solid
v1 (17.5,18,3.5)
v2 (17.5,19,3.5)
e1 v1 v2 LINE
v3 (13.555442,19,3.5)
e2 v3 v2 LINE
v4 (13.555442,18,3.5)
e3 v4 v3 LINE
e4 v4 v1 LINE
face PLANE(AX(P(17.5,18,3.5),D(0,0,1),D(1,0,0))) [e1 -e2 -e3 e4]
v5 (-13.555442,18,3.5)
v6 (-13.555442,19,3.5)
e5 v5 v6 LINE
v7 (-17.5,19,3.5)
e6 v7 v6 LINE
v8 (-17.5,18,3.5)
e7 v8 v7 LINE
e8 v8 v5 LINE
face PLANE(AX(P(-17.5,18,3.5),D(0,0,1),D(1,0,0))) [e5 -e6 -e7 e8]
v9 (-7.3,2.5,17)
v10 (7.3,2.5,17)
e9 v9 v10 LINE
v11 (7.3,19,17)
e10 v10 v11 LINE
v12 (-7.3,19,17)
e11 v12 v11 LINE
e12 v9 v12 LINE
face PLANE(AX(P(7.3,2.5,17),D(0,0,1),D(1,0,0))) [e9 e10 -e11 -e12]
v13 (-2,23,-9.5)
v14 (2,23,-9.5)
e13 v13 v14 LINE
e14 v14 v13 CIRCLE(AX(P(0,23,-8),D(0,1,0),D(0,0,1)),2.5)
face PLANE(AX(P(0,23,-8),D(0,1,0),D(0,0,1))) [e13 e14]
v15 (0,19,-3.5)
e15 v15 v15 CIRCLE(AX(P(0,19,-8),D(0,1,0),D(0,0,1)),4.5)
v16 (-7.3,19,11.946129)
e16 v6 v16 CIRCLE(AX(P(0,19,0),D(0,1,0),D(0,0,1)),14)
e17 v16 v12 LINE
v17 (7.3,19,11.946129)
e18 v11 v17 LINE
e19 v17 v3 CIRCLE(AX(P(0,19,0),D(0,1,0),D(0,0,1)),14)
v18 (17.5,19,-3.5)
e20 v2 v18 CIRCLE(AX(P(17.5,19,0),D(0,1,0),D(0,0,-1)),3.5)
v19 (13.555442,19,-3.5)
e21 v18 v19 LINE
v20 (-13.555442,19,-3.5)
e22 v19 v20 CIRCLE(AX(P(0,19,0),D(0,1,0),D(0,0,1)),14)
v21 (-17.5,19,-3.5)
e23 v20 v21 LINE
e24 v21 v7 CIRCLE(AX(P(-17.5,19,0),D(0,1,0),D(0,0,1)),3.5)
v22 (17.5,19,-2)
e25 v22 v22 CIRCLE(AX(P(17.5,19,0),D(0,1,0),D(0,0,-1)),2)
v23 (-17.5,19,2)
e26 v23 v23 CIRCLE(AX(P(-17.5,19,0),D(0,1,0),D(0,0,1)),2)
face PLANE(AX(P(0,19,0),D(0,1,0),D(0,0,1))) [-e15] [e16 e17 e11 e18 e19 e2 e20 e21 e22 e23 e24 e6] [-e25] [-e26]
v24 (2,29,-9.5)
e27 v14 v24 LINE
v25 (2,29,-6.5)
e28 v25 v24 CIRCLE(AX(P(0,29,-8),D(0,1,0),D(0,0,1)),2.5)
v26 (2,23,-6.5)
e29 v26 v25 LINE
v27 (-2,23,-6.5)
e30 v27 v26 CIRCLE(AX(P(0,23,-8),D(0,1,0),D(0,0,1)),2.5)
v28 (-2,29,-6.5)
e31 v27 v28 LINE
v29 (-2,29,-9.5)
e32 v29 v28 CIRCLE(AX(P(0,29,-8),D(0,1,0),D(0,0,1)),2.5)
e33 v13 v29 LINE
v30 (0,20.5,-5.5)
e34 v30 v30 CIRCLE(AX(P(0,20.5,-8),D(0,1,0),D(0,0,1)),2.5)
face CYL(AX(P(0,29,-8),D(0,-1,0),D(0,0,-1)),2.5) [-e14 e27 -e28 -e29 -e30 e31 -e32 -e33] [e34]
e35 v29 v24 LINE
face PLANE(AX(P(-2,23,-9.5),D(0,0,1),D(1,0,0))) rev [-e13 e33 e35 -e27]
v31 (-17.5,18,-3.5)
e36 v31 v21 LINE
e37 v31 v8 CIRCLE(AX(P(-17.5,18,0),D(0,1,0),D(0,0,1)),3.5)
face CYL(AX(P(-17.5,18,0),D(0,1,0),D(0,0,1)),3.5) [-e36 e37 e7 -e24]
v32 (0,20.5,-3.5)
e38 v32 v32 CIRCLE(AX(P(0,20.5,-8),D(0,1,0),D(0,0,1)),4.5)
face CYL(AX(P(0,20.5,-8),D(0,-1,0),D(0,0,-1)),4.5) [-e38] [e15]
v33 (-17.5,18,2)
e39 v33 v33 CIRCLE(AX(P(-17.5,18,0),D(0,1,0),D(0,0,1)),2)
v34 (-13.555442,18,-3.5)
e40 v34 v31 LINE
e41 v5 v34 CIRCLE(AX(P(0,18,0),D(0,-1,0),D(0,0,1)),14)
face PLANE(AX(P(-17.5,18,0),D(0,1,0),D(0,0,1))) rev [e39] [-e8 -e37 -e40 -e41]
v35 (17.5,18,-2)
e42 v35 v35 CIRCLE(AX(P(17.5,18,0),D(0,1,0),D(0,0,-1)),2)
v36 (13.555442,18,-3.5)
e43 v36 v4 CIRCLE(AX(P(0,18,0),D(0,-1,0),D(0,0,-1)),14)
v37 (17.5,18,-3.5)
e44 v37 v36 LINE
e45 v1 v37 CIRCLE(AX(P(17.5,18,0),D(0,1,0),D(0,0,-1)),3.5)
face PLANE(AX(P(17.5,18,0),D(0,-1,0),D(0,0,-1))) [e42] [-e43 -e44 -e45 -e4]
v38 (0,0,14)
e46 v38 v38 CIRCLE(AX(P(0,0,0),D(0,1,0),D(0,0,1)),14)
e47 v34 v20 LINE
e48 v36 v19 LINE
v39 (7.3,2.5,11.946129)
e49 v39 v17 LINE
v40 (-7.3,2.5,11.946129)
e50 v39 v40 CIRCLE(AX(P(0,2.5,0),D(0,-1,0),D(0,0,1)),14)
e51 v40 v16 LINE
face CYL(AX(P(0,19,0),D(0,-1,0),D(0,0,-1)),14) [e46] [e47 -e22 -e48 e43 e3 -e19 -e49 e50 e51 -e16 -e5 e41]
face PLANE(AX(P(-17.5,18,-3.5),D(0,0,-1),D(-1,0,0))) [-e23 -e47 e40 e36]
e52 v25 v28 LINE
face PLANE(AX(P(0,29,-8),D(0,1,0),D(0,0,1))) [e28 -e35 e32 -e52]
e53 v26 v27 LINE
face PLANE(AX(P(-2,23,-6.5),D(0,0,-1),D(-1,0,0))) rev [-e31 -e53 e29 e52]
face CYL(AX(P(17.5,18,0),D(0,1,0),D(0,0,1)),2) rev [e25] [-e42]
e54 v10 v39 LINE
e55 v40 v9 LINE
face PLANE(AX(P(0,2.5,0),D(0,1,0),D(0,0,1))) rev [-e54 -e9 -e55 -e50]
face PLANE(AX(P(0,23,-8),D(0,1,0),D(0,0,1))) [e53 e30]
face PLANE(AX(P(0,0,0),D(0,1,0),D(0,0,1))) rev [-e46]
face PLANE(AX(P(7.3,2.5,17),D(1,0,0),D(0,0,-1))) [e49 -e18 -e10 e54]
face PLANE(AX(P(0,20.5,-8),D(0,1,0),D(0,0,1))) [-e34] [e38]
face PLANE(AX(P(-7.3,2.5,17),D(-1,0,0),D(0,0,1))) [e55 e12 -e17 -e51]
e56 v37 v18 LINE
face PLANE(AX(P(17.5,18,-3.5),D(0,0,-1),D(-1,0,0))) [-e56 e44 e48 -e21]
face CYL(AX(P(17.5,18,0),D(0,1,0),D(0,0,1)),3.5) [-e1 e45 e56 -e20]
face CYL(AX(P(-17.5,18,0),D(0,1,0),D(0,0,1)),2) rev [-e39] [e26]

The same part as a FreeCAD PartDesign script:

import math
import FreeCAD as App
import Part
import Sketcher
Q = App.Units.Quantity

doc = App.newDocument("Part")
body = doc.addObject("PartDesign::Body", "Body")

# Sketch on XZ plane
sketch1 = body.newObject("Sketcher::SketchObject", "Sketch")
sketch1.AttachmentSupport = (doc.getObject("XZ_Plane"), [""])
sketch1.MapMode = "FlatFace"
sketch1.addGeometry(Part.Circle(App.Vector(0, 0, 0), App.Vector(0, 0, 1), 14), False)
sketch1.addConstraint([
    Sketcher.Constraint("Coincident", 0, 3, -1, 1),
    Sketcher.Constraint("Diameter", 0, Q("28 mm")),
])
pad1 = body.newObject("PartDesign::Pad", "Pad")
pad1.Profile = sketch1
pad1.Length = 19
pad1.Reversed = True

# Sketch on XZ plane
sketch2 = body.newObject("Sketcher::SketchObject", "Sketch001")
sketch2.AttachmentSupport = (doc.getObject("XZ_Plane"), [""])
sketch2.MapMode = "FlatFace"
sketch2.AttachmentOffset = App.Placement(App.Vector(0, 0, -19), App.Rotation())
sketch2.addGeometry(Part.Circle(App.Vector(0, -8, 0), App.Vector(0, 0, 1), 4.5), False)
sketch2.addConstraint([
    Sketcher.Constraint("PointOnObject", 0, 3, -2),
    Sketcher.Constraint("Diameter", 0, Q("9 mm")),
    Sketcher.Constraint("DistanceY", 0, 3, -1, 1, Q("8 mm")),
])
pad2 = body.newObject("PartDesign::Pad", "Pad001")
pad2.Profile = sketch2
pad2.Length = 1.5
pad2.Reversed = True

# Sketch on XZ plane
sketch3 = body.newObject("Sketcher::SketchObject", "Sketch002")
sketch3.AttachmentSupport = (doc.getObject("XZ_Plane"), [""])
sketch3.MapMode = "FlatFace"
sketch3.AttachmentOffset = App.Placement(App.Vector(0, 0, -20.5), App.Rotation())
sketch3.addGeometry(Part.Circle(App.Vector(0, -8, 0), App.Vector(0, 0, 1), 2.5), False)
sketch3.addConstraint([
    Sketcher.Constraint("PointOnObject", 0, 3, -2),
    Sketcher.Constraint("Diameter", 0, Q("5 mm")),
    Sketcher.Constraint("DistanceY", 0, 3, -1, 1, Q("8 mm")),
])
pad3 = body.newObject("PartDesign::Pad", "Pad002")
pad3.Profile = sketch3
pad3.Length = 8.5
pad3.Reversed = True

# Sketch on XZ plane
sketch4 = body.newObject("Sketcher::SketchObject", "Sketch003")
sketch4.AttachmentSupport = (doc.getObject("XZ_Plane"), [""])
sketch4.MapMode = "FlatFace"
sketch4.AttachmentOffset = App.Placement(App.Vector(0, 0, -23), App.Rotation())
sketch4.addGeometry([
    Part.LineSegment(App.Vector(-2, -9.5, 0), App.Vector(2, -9.5, 0)),
    Part.ArcOfCircle(Part.Circle(App.Vector(0, -8, 0), App.Vector(0, 0, 1), 2.5), math.radians(-143), math.radians(-37)),
    Part.LineSegment(App.Vector(2, -6.5, 0), App.Vector(-2, -6.5, 0)),
    Part.ArcOfCircle(Part.Circle(App.Vector(0, -8, 0), App.Vector(0, 0, 1), 2.5), math.radians(37), math.radians(143)),
], False)
sketch4.addConstraint([
    Sketcher.Constraint("Coincident", 0, 1, 1, 1),
    Sketcher.Constraint("Coincident", 1, 2, 0, 2),
    Sketcher.Constraint("Coincident", 2, 1, 3, 1),
    Sketcher.Constraint("Coincident", 3, 2, 2, 2),
    Sketcher.Constraint("Horizontal", 0),
    Sketcher.Constraint("Horizontal", 2),
    Sketcher.Constraint("Coincident", 3, 3, 1, 3),
    Sketcher.Constraint("Equal", 1, 3),
    Sketcher.Constraint("PointOnObject", 1, 3, -2),
    Sketcher.Constraint("Vertical", 1, 2, 2, 1),
    Sketcher.Constraint("Radius", 1, Q("2.5 mm")),
    Sketcher.Constraint("DistanceX", 0, 1, 0, 2, Q("4 mm")),
    Sketcher.Constraint("DistanceY", 1, 3, -1, 1, Q("8 mm")),
])
pocket1 = body.newObject("PartDesign::Pocket", "Pocket")
pocket1.Profile = sketch4
pocket1.Length = 6

# Sketch on XZ plane
sketch5 = body.newObject("Sketcher::SketchObject", "Sketch004")
sketch5.AttachmentSupport = (doc.getObject("XZ_Plane"), [""])
sketch5.MapMode = "FlatFace"
sketch5.AttachmentOffset = App.Placement(App.Vector(0, 0, -18), App.Rotation())
sketch5.addGeometry([
    Part.LineSegment(App.Vector(-13.6, -3.5, 0), App.Vector(-17.5, -3.5, 0)),  # 0
    Part.ArcOfCircle(Part.Circle(App.Vector(-17.5, 0, 0), App.Vector(0, 0, 1), 3.5), math.radians(90), math.radians(270)),  # 1
    Part.LineSegment(App.Vector(-17.5, 3.5, 0), App.Vector(-13.6, 3.5, 0)),  # 2
    Part.ArcOfCircle(Part.Circle(App.Vector(0, 0, 0), App.Vector(0, 0, 1), 14), math.radians(166), math.radians(194)),  # 3
    Part.Circle(App.Vector(-17.5, 0, 0), App.Vector(0, 0, 1), 2),  # 4
    Part.LineSegment(App.Vector(17.5, -3.5, 0), App.Vector(13.6, -3.5, 0)),  # 5
    Part.ArcOfCircle(Part.Circle(App.Vector(0, 0, 0), App.Vector(0, 0, 1), 14), math.radians(-14), math.radians(14)),  # 6
    Part.LineSegment(App.Vector(13.6, 3.5, 0), App.Vector(17.5, 3.5, 0)),  # 7
    Part.ArcOfCircle(Part.Circle(App.Vector(17.5, 0, 0), App.Vector(0, 0, 1), 3.5), math.radians(-90), math.radians(90)),  # 8
    Part.Circle(App.Vector(17.5, 0, 0), App.Vector(0, 0, 1), 2),  # 9
], False)
sketch5.addConstraint([
    Sketcher.Constraint("Tangent", 0, 2, 1, 2),
    Sketcher.Constraint("Tangent", 1, 1, 2, 1),
    Sketcher.Constraint("Coincident", 2, 2, 3, 1),
    Sketcher.Constraint("Coincident", 3, 2, 0, 1),
    Sketcher.Constraint("Coincident", 5, 2, 6, 1),
    Sketcher.Constraint("Coincident", 6, 2, 7, 1),
    Sketcher.Constraint("Tangent", 7, 2, 8, 2),
    Sketcher.Constraint("Tangent", 8, 1, 5, 1),
    Sketcher.Constraint("Horizontal", 0),
    Sketcher.Constraint("Horizontal", 2),
    Sketcher.Constraint("Horizontal", 5),
    Sketcher.Constraint("Horizontal", 7),
    Sketcher.Constraint("Coincident", 3, 3, -1, 1),
    Sketcher.Constraint("Coincident", 6, 3, -1, 1),
    Sketcher.Constraint("Coincident", 4, 3, 1, 3),
    Sketcher.Constraint("Coincident", 9, 3, 8, 3),
    Sketcher.Constraint("Equal", 3, 6),
    Sketcher.Constraint("Equal", 1, 8),
    Sketcher.Constraint("Equal", 4, 9),
    Sketcher.Constraint("Symmetric", 1, 3, 8, 3, -1, 1),
    Sketcher.Constraint("PointOnObject", 1, 3, -1),
    Sketcher.Constraint("Diameter", 4, Q("4 mm")),
    Sketcher.Constraint("Radius", 3, Q("14 mm")),
    Sketcher.Constraint("Radius", 1, Q("3.5 mm")),
    Sketcher.Constraint("DistanceX", 1, 3, 8, 3, Q("35 mm")),
])
pad4 = body.newObject("PartDesign::Pad", "Pad003")
pad4.Profile = sketch5
pad4.Length = 1
pad4.Reversed = True

# Sketch on XZ plane
sketch6 = body.newObject("Sketcher::SketchObject", "Sketch005")
sketch6.AttachmentSupport = (doc.getObject("XZ_Plane"), [""])
sketch6.MapMode = "FlatFace"
sketch6.AttachmentOffset = App.Placement(App.Vector(0, 0, -2.5), App.Rotation())
sketch6.addGeometry([
    Part.LineSegment(App.Vector(-7, 17, 0), App.Vector(7, 17, 0)),
    Part.LineSegment(App.Vector(7, 17, 0), App.Vector(7, 12, 0)),
    Part.ArcOfCircle(Part.Circle(App.Vector(0, 0, 0), App.Vector(0, 0, 1), 14), math.radians(59), math.radians(121)),
    Part.LineSegment(App.Vector(-7, 12, 0), App.Vector(-7, 17, 0)),
], False)
sketch6.addConstraint([
    Sketcher.Constraint("Coincident", 0, 2, 1, 1),
    Sketcher.Constraint("Coincident", 1, 2, 2, 1),
    Sketcher.Constraint("Coincident", 2, 2, 3, 1),
    Sketcher.Constraint("Coincident", 3, 2, 0, 1),
    Sketcher.Constraint("Horizontal", 0),
    Sketcher.Constraint("Vertical", 1),
    Sketcher.Constraint("Vertical", 3),
    Sketcher.Constraint("Coincident", 2, 3, -1, 1),
    Sketcher.Constraint("Horizontal", 1, 2, 2, 2),
    Sketcher.Constraint("Radius", 2, Q("14 mm")),
    Sketcher.Constraint("DistanceX", 0, 1, 0, 2, Q("14.6 mm")),
    Sketcher.Constraint("DistanceY", -1, 1, 0, 2, Q("17 mm")),
])
pad5 = body.newObject("PartDesign::Pad", "Pad004")
pad5.Profile = sketch6
pad5.Length = 16.5
pad5.Reversed = True

doc.recompute()
